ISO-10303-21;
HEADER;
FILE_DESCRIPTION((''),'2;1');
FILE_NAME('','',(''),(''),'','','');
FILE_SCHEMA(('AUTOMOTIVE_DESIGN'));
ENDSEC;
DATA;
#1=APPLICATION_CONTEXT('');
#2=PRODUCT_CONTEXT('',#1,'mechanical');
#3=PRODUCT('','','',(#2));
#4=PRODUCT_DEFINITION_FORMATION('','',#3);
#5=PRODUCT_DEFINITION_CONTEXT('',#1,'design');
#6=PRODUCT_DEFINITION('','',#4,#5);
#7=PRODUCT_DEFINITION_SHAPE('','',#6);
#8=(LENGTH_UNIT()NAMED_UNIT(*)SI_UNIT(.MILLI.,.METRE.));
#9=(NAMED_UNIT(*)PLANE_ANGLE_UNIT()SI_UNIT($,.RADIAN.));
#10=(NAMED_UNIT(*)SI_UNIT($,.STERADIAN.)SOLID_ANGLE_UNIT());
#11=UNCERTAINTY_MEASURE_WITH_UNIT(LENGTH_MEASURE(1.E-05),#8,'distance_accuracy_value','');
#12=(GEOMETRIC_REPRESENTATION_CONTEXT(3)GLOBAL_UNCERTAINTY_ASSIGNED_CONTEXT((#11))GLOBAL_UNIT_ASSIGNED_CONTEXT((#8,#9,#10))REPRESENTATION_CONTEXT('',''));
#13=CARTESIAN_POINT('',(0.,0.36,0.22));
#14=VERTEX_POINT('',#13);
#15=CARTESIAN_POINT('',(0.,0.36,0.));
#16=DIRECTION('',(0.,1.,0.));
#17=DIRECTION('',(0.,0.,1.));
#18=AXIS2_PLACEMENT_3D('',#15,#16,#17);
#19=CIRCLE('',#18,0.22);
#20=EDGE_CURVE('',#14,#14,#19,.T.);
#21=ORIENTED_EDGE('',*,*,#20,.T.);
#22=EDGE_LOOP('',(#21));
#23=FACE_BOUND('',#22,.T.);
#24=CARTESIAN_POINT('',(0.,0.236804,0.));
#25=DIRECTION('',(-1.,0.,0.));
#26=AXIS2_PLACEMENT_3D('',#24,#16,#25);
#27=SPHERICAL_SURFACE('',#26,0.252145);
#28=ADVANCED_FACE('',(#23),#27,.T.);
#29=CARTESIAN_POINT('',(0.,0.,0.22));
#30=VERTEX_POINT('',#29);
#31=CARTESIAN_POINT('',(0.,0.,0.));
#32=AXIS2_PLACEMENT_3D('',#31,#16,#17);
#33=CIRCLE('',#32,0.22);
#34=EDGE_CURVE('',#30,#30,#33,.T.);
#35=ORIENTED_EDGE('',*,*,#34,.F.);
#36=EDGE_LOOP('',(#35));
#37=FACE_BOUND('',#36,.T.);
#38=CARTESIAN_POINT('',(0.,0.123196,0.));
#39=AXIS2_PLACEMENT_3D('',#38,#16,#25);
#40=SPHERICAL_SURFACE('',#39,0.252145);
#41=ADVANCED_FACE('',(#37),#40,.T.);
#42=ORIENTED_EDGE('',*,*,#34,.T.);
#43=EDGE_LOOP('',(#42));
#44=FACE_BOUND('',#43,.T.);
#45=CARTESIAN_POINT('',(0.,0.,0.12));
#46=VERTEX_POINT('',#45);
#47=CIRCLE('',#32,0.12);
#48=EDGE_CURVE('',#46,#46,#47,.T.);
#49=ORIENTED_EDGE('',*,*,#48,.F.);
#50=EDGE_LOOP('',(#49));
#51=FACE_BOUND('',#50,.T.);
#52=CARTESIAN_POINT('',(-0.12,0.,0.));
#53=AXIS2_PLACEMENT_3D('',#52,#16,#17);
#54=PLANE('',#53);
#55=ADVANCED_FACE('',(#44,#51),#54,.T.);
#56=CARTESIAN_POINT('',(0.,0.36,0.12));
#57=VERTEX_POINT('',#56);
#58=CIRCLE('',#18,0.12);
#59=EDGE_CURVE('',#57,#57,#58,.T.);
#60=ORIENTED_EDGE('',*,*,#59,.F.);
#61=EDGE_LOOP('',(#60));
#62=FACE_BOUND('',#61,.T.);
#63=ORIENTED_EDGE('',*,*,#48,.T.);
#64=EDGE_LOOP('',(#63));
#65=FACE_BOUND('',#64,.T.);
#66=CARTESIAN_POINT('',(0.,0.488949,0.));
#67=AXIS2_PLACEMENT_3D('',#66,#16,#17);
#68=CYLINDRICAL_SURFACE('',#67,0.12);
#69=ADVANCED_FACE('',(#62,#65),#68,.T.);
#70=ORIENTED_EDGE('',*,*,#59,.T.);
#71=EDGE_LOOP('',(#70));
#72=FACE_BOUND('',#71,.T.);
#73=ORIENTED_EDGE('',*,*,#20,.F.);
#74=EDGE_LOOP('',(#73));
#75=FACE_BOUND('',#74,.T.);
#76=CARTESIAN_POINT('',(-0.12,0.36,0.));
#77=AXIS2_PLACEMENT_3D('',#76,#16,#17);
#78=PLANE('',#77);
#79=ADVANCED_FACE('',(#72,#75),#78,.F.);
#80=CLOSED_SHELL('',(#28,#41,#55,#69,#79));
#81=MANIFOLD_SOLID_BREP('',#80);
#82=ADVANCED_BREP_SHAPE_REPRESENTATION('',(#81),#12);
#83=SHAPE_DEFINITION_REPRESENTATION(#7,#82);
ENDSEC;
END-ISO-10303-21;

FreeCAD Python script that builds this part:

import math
import FreeCAD as App
import Part
import Sketcher
from FreeCAD import Vector
Q = App.Units.Quantity

doc = App.newDocument("Part")
body = doc.addObject("PartDesign::Body", "Body")

# Sketch on XY plane
sketch1 = body.newObject("Sketcher::SketchObject", "Sketch")
sketch1.AttachmentSupport = (doc.getObject("XY_Plane"), [""])
sketch1.MapMode = "FlatFace"
sketch1.addGeometry([
    Part.LineSegment(Vector(-0.12, 0.36, 0), Vector(-0.12, 0, 0)),  # 0
    Part.LineSegment(Vector(-0.12, 0, 0), Vector(-0.22, 0, 0)),  # 1
    Part.ArcOfCircle(Part.Circle(Vector(0, 0.12, 0), Vector(0, 0, 1), 0.25), math.radians(-151), math.radians(-90)),  # 2
    Part.LineSegment(Vector(0, -0.13, 0), Vector(0, 0.49, 0)),  # 3
    Part.ArcOfCircle(Part.Circle(Vector(0, 0.24, 0), Vector(0, 0, 1), 0.25), math.radians(90), math.radians(151)),  # 4
    Part.LineSegment(Vector(-0.22, 0.36, 0), Vector(-0.12, 0.36, 0)),  # 5
], False)
sketch1.addConstraint([
    Sketcher.Constraint("Coincident", 0, 2, 1, 1),
    Sketcher.Constraint("Coincident", 1, 2, 2, 1),
    Sketcher.Constraint("Coincident", 2, 2, 3, 1),
    Sketcher.Constraint("Coincident", 3, 2, 4, 1),
    Sketcher.Constraint("Coincident", 4, 2, 5, 1),
    Sketcher.Constraint("Coincident", 5, 2, 0, 1),
    Sketcher.Constraint("Vertical", 0),
    Sketcher.Constraint("Horizontal", 1),
    Sketcher.Constraint("Vertical", 3),
    Sketcher.Constraint("Horizontal", 5),
    Sketcher.Constraint("Equal", 2, 4),
    Sketcher.Constraint("PointOnObject", 2, 3, -2),
    Sketcher.Constraint("PointOnObject", 4, 3, -2),
    Sketcher.Constraint("PointOnObject", 0, 2, -1),
    Sketcher.Constraint("PointOnObject", 2, 2, -2),
    Sketcher.Constraint("Vertical", 1, 2, 4, 2),
    Sketcher.Constraint("DistanceX", 1, 2, 1, 1, Q("0.1 mm")),
    Sketcher.Constraint("DistanceY", 0, 2, 0, 1, Q("0.36 mm")),
    Sketcher.Constraint("DistanceX", 0, 2, -1, 1, Q("0.12 mm")),
    Sketcher.Constraint("DistanceY", 3, 1, 3, 2, Q("0.617899 mm")),
])
revolution = body.newObject("PartDesign::Revolution", "Revolution")
revolution.Profile = sketch1
revolution.ReferenceAxis = (sketch1, ["V_Axis"])
revolution.Angle = 360

doc.recompute()
